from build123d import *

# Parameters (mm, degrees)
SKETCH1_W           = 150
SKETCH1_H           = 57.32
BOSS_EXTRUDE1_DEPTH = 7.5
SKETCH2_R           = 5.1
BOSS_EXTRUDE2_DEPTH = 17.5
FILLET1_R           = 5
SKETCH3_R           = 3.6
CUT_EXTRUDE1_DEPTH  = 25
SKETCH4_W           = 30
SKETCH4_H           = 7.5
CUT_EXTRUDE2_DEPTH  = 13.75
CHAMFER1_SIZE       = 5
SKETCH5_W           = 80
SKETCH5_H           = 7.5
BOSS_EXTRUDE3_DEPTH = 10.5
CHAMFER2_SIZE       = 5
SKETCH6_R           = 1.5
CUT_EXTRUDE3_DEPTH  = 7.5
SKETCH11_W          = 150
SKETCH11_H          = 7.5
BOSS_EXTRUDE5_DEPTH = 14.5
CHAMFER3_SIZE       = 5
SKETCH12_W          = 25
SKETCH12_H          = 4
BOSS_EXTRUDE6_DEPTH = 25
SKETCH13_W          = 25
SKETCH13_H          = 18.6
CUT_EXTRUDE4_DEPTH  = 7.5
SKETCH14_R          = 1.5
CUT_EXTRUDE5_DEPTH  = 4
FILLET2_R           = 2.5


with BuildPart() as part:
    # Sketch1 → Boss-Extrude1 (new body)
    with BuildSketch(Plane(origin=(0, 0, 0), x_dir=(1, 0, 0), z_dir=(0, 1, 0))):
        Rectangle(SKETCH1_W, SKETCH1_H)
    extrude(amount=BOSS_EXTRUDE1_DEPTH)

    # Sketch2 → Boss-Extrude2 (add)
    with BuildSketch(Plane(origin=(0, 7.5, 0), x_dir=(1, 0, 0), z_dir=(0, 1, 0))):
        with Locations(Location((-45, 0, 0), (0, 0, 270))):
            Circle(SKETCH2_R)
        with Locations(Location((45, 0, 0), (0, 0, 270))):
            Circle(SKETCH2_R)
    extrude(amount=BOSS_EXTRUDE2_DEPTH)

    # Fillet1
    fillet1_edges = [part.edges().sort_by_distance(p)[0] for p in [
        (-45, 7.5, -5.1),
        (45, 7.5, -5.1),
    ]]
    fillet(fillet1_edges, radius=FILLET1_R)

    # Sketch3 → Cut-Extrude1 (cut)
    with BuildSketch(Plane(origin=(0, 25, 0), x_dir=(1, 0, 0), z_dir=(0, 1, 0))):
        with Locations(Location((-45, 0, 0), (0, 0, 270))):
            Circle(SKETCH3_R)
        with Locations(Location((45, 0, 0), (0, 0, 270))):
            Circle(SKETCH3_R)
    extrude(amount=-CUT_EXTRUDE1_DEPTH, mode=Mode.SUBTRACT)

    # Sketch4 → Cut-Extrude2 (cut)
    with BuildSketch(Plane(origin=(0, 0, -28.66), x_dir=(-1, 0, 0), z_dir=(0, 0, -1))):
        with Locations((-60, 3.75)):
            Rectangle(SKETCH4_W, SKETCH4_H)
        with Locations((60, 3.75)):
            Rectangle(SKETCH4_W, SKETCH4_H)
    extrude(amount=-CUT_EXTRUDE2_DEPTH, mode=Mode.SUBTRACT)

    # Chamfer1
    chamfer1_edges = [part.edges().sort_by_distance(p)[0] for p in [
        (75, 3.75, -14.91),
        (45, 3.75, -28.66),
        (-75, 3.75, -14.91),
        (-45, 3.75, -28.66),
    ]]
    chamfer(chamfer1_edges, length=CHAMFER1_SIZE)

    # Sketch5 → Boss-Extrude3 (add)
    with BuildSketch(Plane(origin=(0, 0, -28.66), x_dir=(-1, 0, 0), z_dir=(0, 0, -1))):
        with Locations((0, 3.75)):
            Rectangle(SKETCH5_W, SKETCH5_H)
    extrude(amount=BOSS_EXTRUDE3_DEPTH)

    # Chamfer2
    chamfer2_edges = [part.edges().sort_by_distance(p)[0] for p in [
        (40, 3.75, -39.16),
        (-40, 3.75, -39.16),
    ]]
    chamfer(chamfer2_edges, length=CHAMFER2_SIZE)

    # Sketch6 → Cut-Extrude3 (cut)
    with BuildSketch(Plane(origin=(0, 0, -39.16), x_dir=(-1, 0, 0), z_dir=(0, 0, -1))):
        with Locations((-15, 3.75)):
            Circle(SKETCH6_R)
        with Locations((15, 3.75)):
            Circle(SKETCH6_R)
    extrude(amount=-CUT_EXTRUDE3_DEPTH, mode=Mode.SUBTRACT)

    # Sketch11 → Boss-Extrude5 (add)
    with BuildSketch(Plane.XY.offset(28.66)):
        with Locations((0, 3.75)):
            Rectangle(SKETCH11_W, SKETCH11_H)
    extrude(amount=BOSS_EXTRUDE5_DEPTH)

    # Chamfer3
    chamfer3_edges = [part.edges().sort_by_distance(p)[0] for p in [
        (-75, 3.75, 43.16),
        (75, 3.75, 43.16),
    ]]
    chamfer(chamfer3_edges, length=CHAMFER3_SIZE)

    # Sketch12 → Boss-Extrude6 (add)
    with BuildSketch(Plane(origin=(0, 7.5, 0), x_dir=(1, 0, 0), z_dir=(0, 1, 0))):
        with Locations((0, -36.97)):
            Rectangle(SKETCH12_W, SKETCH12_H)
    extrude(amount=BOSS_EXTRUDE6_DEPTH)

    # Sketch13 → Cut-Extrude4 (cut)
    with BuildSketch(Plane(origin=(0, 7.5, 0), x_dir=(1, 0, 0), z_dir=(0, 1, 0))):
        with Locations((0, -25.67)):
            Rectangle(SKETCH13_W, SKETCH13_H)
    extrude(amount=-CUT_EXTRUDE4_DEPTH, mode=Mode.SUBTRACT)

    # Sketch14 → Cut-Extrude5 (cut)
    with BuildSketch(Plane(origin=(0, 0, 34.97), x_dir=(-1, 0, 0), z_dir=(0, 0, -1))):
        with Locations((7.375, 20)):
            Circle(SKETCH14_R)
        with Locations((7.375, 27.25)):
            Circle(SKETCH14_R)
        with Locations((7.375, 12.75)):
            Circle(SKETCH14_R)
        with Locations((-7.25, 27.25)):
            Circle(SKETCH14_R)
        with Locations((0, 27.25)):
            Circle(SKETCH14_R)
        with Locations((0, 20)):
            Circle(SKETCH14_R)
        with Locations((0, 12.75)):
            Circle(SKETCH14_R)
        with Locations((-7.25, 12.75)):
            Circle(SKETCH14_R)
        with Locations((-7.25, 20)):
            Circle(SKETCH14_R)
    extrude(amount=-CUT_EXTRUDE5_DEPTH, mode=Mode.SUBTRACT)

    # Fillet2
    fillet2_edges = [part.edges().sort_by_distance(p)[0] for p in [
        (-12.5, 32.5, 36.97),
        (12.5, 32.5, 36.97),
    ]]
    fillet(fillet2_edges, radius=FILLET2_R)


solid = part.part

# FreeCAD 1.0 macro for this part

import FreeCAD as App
import Part
import Sketcher

V = App.Vector
Q = App.Units.Quantity


def edges_at(feature, points):
    """Names of the edges that pass closest to the given points."""
    edges = feature.Shape.Edges
    near = lambda p: min(range(len(edges)), key=lambda i: edges[i].distToShape(Part.Vertex(*p))[0])
    return sorted({f"Edge{near(p) + 1}" for p in points})

doc = App.newDocument("Part")
body = doc.addObject("PartDesign::Body", "Body")

# Sketch on XZ plane
sketch1 = body.newObject("Sketcher::SketchObject", "Sketch")
sketch1.AttachmentSupport = (doc.getObject("XZ_Plane"), [""])
sketch1.MapMode = "FlatFace"
sketch1.addGeometry([
    Part.LineSegment(V(-75, -28.66, 0), V(-75, 28.66, 0)),
    Part.LineSegment(V(-75, 28.66, 0), V(75, 28.66, 0)),
    Part.LineSegment(V(75, 28.66, 0), V(75, -28.66, 0)),
    Part.LineSegment(V(75, -28.66, 0), V(-75, -28.66, 0)),
], False)
sketch1.addConstraint([
    Sketcher.Constraint("Coincident", 0, 2, 1, 1),
    Sketcher.Constraint("Coincident", 1, 2, 2, 1),
    Sketcher.Constraint("Coincident", 2, 2, 3, 1),
    Sketcher.Constraint("Coincident", 3, 2, 0, 1),
    Sketcher.Constraint("Vertical", 0),
    Sketcher.Constraint("Horizontal", 1),
    Sketcher.Constraint("Vertical", 2),
    Sketcher.Constraint("Horizontal", 3),
    Sketcher.Constraint("Symmetric", 0, 2, 2, 2, -1, 1),
    Sketcher.Constraint("DistanceX", 1, 1, 1, 2, Q("150 mm")),
    Sketcher.Constraint("DistanceY", 0, 1, 0, 2, Q("57.32 mm")),
])
pad1 = body.newObject("PartDesign::Pad", "Pad")
pad1.Profile = sketch1
pad1.Length = 7.5
pad1.Reversed = True

# Sketch on XZ plane
sketch2 = body.newObject("Sketcher::SketchObject", "Sketch001")
sketch2.AttachmentSupport = (doc.getObject("XZ_Plane"), [""])
sketch2.MapMode = "FlatFace"
sketch2.AttachmentOffset = App.Placement(V(0, 0, -7.5), App.Rotation())
sketch2.addGeometry([
    Part.Circle(V(-45, 0, 0), V(0, 0, 1), 5.1),
    Part.Circle(V(45, 0, 0), V(0, 0, 1), 5.1),
], False)
sketch2.addConstraint([
    Sketcher.Constraint("Equal", 0, 1),
    Sketcher.Constraint("Symmetric", 0, 3, 1, 3, -1, 1),
    Sketcher.Constraint("PointOnObject", 0, 3, -1),
    Sketcher.Constraint("Diameter", 0, Q("10.2 mm")),
    Sketcher.Constraint("DistanceX", 0, 3, -1, 1, Q("45 mm")),
])
pad2 = body.newObject("PartDesign::Pad", "Pad001")
pad2.Profile = sketch2
pad2.Length = 17.5
pad2.Reversed = True
doc.recompute()

fillet = body.newObject("PartDesign::Fillet", "Fillet")
fillet.Base = (pad2, edges_at(pad2, [(-45, 7.5, -5.1), (45, 7.5, -5.1)]))
fillet.Radius = 5

# Sketch on XZ plane
sketch3 = body.newObject("Sketcher::SketchObject", "Sketch002")
sketch3.AttachmentSupport = (doc.getObject("XZ_Plane"), [""])
sketch3.MapMode = "FlatFace"
sketch3.AttachmentOffset = App.Placement(V(0, 0, -25), App.Rotation())
sketch3.addGeometry([
    Part.Circle(V(-45, 0, 0), V(0, 0, 1), 3.6),
    Part.Circle(V(45, 0, 0), V(0, 0, 1), 3.6),
], False)
sketch3.addConstraint([
    Sketcher.Constraint("Equal", 0, 1),
    Sketcher.Constraint("Symmetric", 0, 3, 1, 3, -1, 1),
    Sketcher.Constraint("PointOnObject", 0, 3, -1),
    Sketcher.Constraint("Diameter", 0, Q("7.2 mm")),
    Sketcher.Constraint("DistanceX", 0, 3, -1, 1, Q("45 mm")),
])
pocket1 = body.newObject("PartDesign::Pocket", "Pocket")
pocket1.Profile = sketch3
pocket1.Length = 25
pocket1.Reversed = True

# Sketch on XY plane
sketch4 = body.newObject("Sketcher::SketchObject", "Sketch003")
sketch4.AttachmentSupport = (doc.getObject("XY_Plane"), [""])
sketch4.MapMode = "FlatFace"
sketch4.AttachmentOffset = App.Placement(V(0, 0, -28.66), App.Rotation())
sketch4.addGeometry([
    Part.LineSegment(V(75, 7.5, 0), V(75, 0, 0)),  # 0
    Part.LineSegment(V(75, 0, 0), V(45, 0, 0)),  # 1
    Part.LineSegment(V(45, 0, 0), V(45, 7.5, 0)),  # 2
    Part.LineSegment(V(45, 7.5, 0), V(75, 7.5, 0)),  # 3
    Part.LineSegment(V(-45, 7.5, 0), V(-45, 0, 0)),  # 4
    Part.LineSegment(V(-45, 0, 0), V(-75, 0, 0)),  # 5
    Part.LineSegment(V(-75, 0, 0), V(-75, 7.5, 0)),  # 6
    Part.LineSegment(V(-75, 7.5, 0), V(-45, 7.5, 0)),  # 7
], False)
sketch4.addConstraint([
    Sketcher.Constraint("Coincident", 0, 2, 1, 1),
    Sketcher.Constraint("Coincident", 1, 2, 2, 1),
    Sketcher.Constraint("Coincident", 2, 2, 3, 1),
    Sketcher.Constraint("Coincident", 3, 2, 0, 1),
    Sketcher.Constraint("Coincident", 4, 2, 5, 1),
    Sketcher.Constraint("Coincident", 5, 2, 6, 1),
    Sketcher.Constraint("Coincident", 6, 2, 7, 1),
    Sketcher.Constraint("Coincident", 7, 2, 4, 1),
    Sketcher.Constraint("Vertical", 0),
    Sketcher.Constraint("Horizontal", 1),
    Sketcher.Constraint("Vertical", 2),
    Sketcher.Constraint("Horizontal", 3),
    Sketcher.Constraint("Vertical", 4),
    Sketcher.Constraint("Horizontal", 5),
    Sketcher.Constraint("Vertical", 6),
    Sketcher.Constraint("Horizontal", 7),
    Sketcher.Constraint("Symmetric", 1, 2, 4, 2, -1, 1),
    Sketcher.Constraint("Symmetric", 0, 2, 5, 2, -2),
    Sketcher.Constraint("Horizontal", 3, 2, 6, 2),
    Sketcher.Constraint("DistanceX", 1, 2, 1, 1, Q("30 mm")),
    Sketcher.Constraint("DistanceY", 0, 2, 0, 1, Q("7.5 mm")),
    Sketcher.Constraint("DistanceX", -1, 1, 0, 2, Q("75 mm")),
])
pocket2 = body.newObject("PartDesign::Pocket", "Pocket001")
pocket2.Profile = sketch4
pocket2.Length = 13.75
pocket2.Reversed = True
doc.recompute()

chamfer = body.newObject("PartDesign::Chamfer", "Chamfer")
chamfer.Base = (pocket2, edges_at(pocket2, [
    (75, 3.75, -14.91),
    (45, 3.75, -28.66),
    (-75, 3.75, -14.91),
    (-45, 3.75, -28.66),
]))
chamfer.Size = 5

# Sketch on XY plane
sketch5 = body.newObject("Sketcher::SketchObject", "Sketch004")
sketch5.AttachmentSupport = (doc.getObject("XY_Plane"), [""])
sketch5.MapMode = "FlatFace"
sketch5.AttachmentOffset = App.Placement(V(0, 0, -28.66), App.Rotation())
sketch5.addGeometry([
    Part.LineSegment(V(40, 7.5, 0), V(40, 0, 0)),
    Part.LineSegment(V(40, 0, 0), V(-40, 0, 0)),
    Part.LineSegment(V(-40, 0, 0), V(-40, 7.5, 0)),
    Part.LineSegment(V(-40, 7.5, 0), V(40, 7.5, 0)),
], False)
sketch5.addConstraint([
    Sketcher.Constraint("Coincident", 0, 2, 1, 1),
    Sketcher.Constraint("Coincident", 1, 2, 2, 1),
    Sketcher.Constraint("Coincident", 2, 2, 3, 1),
    Sketcher.Constraint("Coincident", 3, 2, 0, 1),
    Sketcher.Constraint("Vertical", 0),
    Sketcher.Constraint("Horizontal", 1),
    Sketcher.Constraint("Vertical", 2),
    Sketcher.Constraint("Horizontal", 3),
    Sketcher.Constraint("Symmetric", 0, 2, 1, 2, -1, 1),
    Sketcher.Constraint("DistanceX", 1, 2, 1, 1, Q("80 mm")),
    Sketcher.Constraint("DistanceY", 0, 2, 0, 1, Q("7.5 mm")),
])
pad3 = body.newObject("PartDesign::Pad", "Pad002")
pad3.Profile = sketch5
pad3.Length = 10.5
pad3.Reversed = True
doc.recompute()

chamfer2 = body.newObject("PartDesign::Chamfer", "Chamfer001")
chamfer2.Base = (pad3, edges_at(pad3, [(40, 3.75, -39.16), (-40, 3.75, -39.16)]))
chamfer2.Size = 5

# Sketch on XY plane
sketch6 = body.newObject("Sketcher::SketchObject", "Sketch005")
sketch6.AttachmentSupport = (doc.getObject("XY_Plane"), [""])
sketch6.MapMode = "FlatFace"
sketch6.AttachmentOffset = App.Placement(V(0, 0, -39.16), App.Rotation())
sketch6.addGeometry([
    Part.Circle(V(15, 3.75, 0), V(0, 0, 1), 1.5),
    Part.Circle(V(-15, 3.75, 0), V(0, 0, 1), 1.5),
], False)
sketch6.addConstraint([
    Sketcher.Constraint("Equal", 0, 1),
    Sketcher.Constraint("Symmetric", 0, 3, 1, 3, -2),
    Sketcher.Constraint("Diameter", 0, Q("3 mm")),
    Sketcher.Constraint("DistanceX", -1, 1, 0, 3, Q("15 mm")),
    Sketcher.Constraint("DistanceY", -1, 1, 0, 3, Q("3.75 mm")),
])
pocket3 = body.newObject("PartDesign::Pocket", "Pocket002")
pocket3.Profile = sketch6
pocket3.Length = 7.5
pocket3.Reversed = True

# Sketch on XY plane
sketch7 = body.newObject("Sketcher::SketchObject", "Sketch006")
sketch7.AttachmentSupport = (doc.getObject("XY_Plane"), [""])
sketch7.MapMode = "FlatFace"
sketch7.AttachmentOffset = App.Placement(V(0, 0, 28.66), App.Rotation())
sketch7.addGeometry([
    Part.LineSegment(V(-75, 7.5, 0), V(-75, 0, 0)),
    Part.LineSegment(V(-75, 0, 0), V(75, 0, 0)),
    Part.LineSegment(V(75, 0, 0), V(75, 7.5, 0)),
    Part.LineSegment(V(75, 7.5, 0), V(-75, 7.5, 0)),
], False)
sketch7.addConstraint([
    Sketcher.Constraint("Coincident", 0, 2, 1, 1),
    Sketcher.Constraint("Coincident", 1, 2, 2, 1),
    Sketcher.Constraint("Coincident", 2, 2, 3, 1),
    Sketcher.Constraint("Coincident", 3, 2, 0, 1),
    Sketcher.Constraint("Vertical", 0),
    Sketcher.Constraint("Horizontal", 1),
    Sketcher.Constraint("Vertical", 2),
    Sketcher.Constraint("Horizontal", 3),
    Sketcher.Constraint("Symmetric", 0, 2, 1, 2, -1, 1),
    Sketcher.Constraint("DistanceX", 1, 1, 1, 2, Q("150 mm")),
    Sketcher.Constraint("DistanceY", 0, 2, 0, 1, Q("7.5 mm")),
])
pad4 = body.newObject("PartDesign::Pad", "Pad003")
pad4.Profile = sketch7
pad4.Length = 14.5
doc.recompute()

chamfer3 = body.newObject("PartDesign::Chamfer", "Chamfer002")
chamfer3.Base = (pad4, edges_at(pad4, [(-75, 3.75, 43.16), (75, 3.75, 43.16)]))
chamfer3.Size = 5

# Sketch on XZ plane
sketch8 = body.newObject("Sketcher::SketchObject", "Sketch007")
sketch8.AttachmentSupport = (doc.getObject("XZ_Plane"), [""])
sketch8.MapMode = "FlatFace"
sketch8.AttachmentOffset = App.Placement(V(0, 0, -7.5), App.Rotation())
sketch8.addGeometry([
    Part.LineSegment(V(-12.5, 34.97, 0), V(-12.5, 38.97, 0)),
    Part.LineSegment(V(-12.5, 38.97, 0), V(12.5, 38.97, 0)),
    Part.LineSegment(V(12.5, 38.97, 0), V(12.5, 34.97, 0)),
    Part.LineSegment(V(12.5, 34.97, 0), V(-12.5, 34.97, 0)),
], False)
sketch8.addConstraint([
    Sketcher.Constraint("Coincident", 0, 2, 1, 1),
    Sketcher.Constraint("Coincident", 1, 2, 2, 1),
    Sketcher.Constraint("Coincident", 2, 2, 3, 1),
    Sketcher.Constraint("Coincident", 3, 2, 0, 1),
    Sketcher.Constraint("Vertical", 0),
    Sketcher.Constraint("Horizontal", 1),
    Sketcher.Constraint("Vertical", 2),
    Sketcher.Constraint("Horizontal", 3),
    Sketcher.Constraint("DistanceX", 1, 1, 1, 2, Q("25 mm")),
    Sketcher.Constraint("DistanceY", 0, 1, 0, 2, Q("4 mm")),
    Sketcher.Constraint("DistanceX", 0, 2, -1, 1, Q("12.5 mm")),
    Sketcher.Constraint("DistanceY", -1, 1, 0, 2, Q("38.97 mm")),
])
pad5 = body.newObject("PartDesign::Pad", "Pad004")
pad5.Profile = sketch8
pad5.Length = 25
pad5.Reversed = True

# Sketch on XZ plane
sketch9 = body.newObject("Sketcher::SketchObject", "Sketch008")
sketch9.AttachmentSupport = (doc.getObject("XZ_Plane"), [""])
sketch9.MapMode = "FlatFace"
sketch9.AttachmentOffset = App.Placement(V(0, 0, -7.5), App.Rotation())
sketch9.addGeometry([
    Part.LineSegment(V(-12.5, 16.37, 0), V(-12.5, 34.97, 0)),
    Part.LineSegment(V(-12.5, 34.97, 0), V(12.5, 34.97, 0)),
    Part.LineSegment(V(12.5, 34.97, 0), V(12.5, 16.37, 0)),
    Part.LineSegment(V(12.5, 16.37, 0), V(-12.5, 16.37, 0)),
], False)
sketch9.addConstraint([
    Sketcher.Constraint("Coincident", 0, 2, 1, 1),
    Sketcher.Constraint("Coincident", 1, 2, 2, 1),
    Sketcher.Constraint("Coincident", 2, 2, 3, 1),
    Sketcher.Constraint("Coincident", 3, 2, 0, 1),
    Sketcher.Constraint("Vertical", 0),
    Sketcher.Constraint("Horizontal", 1),
    Sketcher.Constraint("Vertical", 2),
    Sketcher.Constraint("Horizontal", 3),
    Sketcher.Constraint("DistanceX", 1, 1, 1, 2, Q("25 mm")),
    Sketcher.Constraint("DistanceY", 0, 1, 0, 2, Q("18.6 mm")),
    Sketcher.Constraint("DistanceX", 0, 2, -1, 1, Q("12.5 mm")),
    Sketcher.Constraint("DistanceY", -1, 1, 0, 2, Q("34.97 mm")),
])
pocket4 = body.newObject("PartDesign::Pocket", "Pocket003")
pocket4.Profile = sketch9
pocket4.Length = 7.5
pocket4.Reversed = True

# Sketch on XY plane
sketch10 = body.newObject("Sketcher::SketchObject", "Sketch009")
sketch10.AttachmentSupport = (doc.getObject("XY_Plane"), [""])
sketch10.MapMode = "FlatFace"
sketch10.AttachmentOffset = App.Placement(V(0, 0, 34.97), App.Rotation())
sketch10.addGeometry([
    Part.Circle(V(-7.375, 20, 0), V(0, 0, 1), 1.5),  # 0
    Part.Circle(V(-7.375, 27.25, 0), V(0, 0, 1), 1.5),  # 1
    Part.Circle(V(-7.375, 12.75, 0), V(0, 0, 1), 1.5),  # 2
    Part.Circle(V(7.25, 27.25, 0), V(0, 0, 1), 1.5),  # 3
    Part.Circle(V(0, 27.25, 0), V(0, 0, 1), 1.5),  # 4
    Part.Circle(V(0, 20, 0), V(0, 0, 1), 1.5),  # 5
    Part.Circle(V(0, 12.75, 0), V(0, 0, 1), 1.5),  # 6
    Part.Circle(V(7.25, 12.75, 0), V(0, 0, 1), 1.5),  # 7
    Part.Circle(V(7.25, 20, 0), V(0, 0, 1), 1.5),  # 8
], False)
sketch10.addConstraint([
    Sketcher.Constraint("Equal", 0, 1),
    Sketcher.Constraint("Equal", 1, 2),
    Sketcher.Constraint("Equal", 2, 3),
    Sketcher.Constraint("Equal", 3, 4),
    Sketcher.Constraint("Equal", 4, 5),
    Sketcher.Constraint("Equal", 5, 6),
    Sketcher.Constraint("Equal", 6, 7),
    Sketcher.Constraint("Equal", 7, 8),
    Sketcher.Constraint("PointOnObject", 4, 3, -2),
    Sketcher.Constraint("PointOnObject", 5, 3, -2),
    Sketcher.Constraint("PointOnObject", 6, 3, -2),
    Sketcher.Constraint("Horizontal", 1, 3, 3, 3),
    Sketcher.Constraint("Horizontal", 3, 3, 4, 3),
    Sketcher.Constraint("Horizontal", 0, 3, 5, 3),
    Sketcher.Constraint("Horizontal", 2, 3, 6, 3),
    Sketcher.Constraint("Horizontal", 6, 3, 7, 3),
    Sketcher.Constraint("Horizontal", 5, 3, 8, 3),
    Sketcher.Constraint("Vertical", 0, 3, 1, 3),
    Sketcher.Constraint("Vertical", 1, 3, 2, 3),
    Sketcher.Constraint("Vertical", 3, 3, 7, 3),
    Sketcher.Constraint("Vertical", 7, 3, 8, 3),
    Sketcher.Constraint("Diameter", 0, Q("3 mm")),
    Sketcher.Constraint("DistanceY", -1, 1, 0, 3, Q("20 mm")),
    Sketcher.Constraint("DistanceY", 2, 3, 1, 3, Q("14.5 mm")),
    Sketcher.Constraint("DistanceY", -1, 1, 1, 3, Q("27.25 mm")),
    Sketcher.Constraint("DistanceX", -1, 1, 3, 3, Q("7.25 mm")),
    Sketcher.Constraint("DistanceX", 0, 3, -1, 1, Q("7.375 mm")),
])
pocket5 = body.newObject("PartDesign::Pocket", "Pocket004")
pocket5.Profile = sketch10
pocket5.Length = 4
pocket5.Reversed = True
doc.recompute()

fillet2 = body.newObject("PartDesign::Fillet", "Fillet001")
fillet2.Base = (pocket5, edges_at(pocket5, [(-12.5, 32.5, 36.97), (12.5, 32.5, 36.97)]))
fillet2.Radius = 2.5

doc.recompute()
